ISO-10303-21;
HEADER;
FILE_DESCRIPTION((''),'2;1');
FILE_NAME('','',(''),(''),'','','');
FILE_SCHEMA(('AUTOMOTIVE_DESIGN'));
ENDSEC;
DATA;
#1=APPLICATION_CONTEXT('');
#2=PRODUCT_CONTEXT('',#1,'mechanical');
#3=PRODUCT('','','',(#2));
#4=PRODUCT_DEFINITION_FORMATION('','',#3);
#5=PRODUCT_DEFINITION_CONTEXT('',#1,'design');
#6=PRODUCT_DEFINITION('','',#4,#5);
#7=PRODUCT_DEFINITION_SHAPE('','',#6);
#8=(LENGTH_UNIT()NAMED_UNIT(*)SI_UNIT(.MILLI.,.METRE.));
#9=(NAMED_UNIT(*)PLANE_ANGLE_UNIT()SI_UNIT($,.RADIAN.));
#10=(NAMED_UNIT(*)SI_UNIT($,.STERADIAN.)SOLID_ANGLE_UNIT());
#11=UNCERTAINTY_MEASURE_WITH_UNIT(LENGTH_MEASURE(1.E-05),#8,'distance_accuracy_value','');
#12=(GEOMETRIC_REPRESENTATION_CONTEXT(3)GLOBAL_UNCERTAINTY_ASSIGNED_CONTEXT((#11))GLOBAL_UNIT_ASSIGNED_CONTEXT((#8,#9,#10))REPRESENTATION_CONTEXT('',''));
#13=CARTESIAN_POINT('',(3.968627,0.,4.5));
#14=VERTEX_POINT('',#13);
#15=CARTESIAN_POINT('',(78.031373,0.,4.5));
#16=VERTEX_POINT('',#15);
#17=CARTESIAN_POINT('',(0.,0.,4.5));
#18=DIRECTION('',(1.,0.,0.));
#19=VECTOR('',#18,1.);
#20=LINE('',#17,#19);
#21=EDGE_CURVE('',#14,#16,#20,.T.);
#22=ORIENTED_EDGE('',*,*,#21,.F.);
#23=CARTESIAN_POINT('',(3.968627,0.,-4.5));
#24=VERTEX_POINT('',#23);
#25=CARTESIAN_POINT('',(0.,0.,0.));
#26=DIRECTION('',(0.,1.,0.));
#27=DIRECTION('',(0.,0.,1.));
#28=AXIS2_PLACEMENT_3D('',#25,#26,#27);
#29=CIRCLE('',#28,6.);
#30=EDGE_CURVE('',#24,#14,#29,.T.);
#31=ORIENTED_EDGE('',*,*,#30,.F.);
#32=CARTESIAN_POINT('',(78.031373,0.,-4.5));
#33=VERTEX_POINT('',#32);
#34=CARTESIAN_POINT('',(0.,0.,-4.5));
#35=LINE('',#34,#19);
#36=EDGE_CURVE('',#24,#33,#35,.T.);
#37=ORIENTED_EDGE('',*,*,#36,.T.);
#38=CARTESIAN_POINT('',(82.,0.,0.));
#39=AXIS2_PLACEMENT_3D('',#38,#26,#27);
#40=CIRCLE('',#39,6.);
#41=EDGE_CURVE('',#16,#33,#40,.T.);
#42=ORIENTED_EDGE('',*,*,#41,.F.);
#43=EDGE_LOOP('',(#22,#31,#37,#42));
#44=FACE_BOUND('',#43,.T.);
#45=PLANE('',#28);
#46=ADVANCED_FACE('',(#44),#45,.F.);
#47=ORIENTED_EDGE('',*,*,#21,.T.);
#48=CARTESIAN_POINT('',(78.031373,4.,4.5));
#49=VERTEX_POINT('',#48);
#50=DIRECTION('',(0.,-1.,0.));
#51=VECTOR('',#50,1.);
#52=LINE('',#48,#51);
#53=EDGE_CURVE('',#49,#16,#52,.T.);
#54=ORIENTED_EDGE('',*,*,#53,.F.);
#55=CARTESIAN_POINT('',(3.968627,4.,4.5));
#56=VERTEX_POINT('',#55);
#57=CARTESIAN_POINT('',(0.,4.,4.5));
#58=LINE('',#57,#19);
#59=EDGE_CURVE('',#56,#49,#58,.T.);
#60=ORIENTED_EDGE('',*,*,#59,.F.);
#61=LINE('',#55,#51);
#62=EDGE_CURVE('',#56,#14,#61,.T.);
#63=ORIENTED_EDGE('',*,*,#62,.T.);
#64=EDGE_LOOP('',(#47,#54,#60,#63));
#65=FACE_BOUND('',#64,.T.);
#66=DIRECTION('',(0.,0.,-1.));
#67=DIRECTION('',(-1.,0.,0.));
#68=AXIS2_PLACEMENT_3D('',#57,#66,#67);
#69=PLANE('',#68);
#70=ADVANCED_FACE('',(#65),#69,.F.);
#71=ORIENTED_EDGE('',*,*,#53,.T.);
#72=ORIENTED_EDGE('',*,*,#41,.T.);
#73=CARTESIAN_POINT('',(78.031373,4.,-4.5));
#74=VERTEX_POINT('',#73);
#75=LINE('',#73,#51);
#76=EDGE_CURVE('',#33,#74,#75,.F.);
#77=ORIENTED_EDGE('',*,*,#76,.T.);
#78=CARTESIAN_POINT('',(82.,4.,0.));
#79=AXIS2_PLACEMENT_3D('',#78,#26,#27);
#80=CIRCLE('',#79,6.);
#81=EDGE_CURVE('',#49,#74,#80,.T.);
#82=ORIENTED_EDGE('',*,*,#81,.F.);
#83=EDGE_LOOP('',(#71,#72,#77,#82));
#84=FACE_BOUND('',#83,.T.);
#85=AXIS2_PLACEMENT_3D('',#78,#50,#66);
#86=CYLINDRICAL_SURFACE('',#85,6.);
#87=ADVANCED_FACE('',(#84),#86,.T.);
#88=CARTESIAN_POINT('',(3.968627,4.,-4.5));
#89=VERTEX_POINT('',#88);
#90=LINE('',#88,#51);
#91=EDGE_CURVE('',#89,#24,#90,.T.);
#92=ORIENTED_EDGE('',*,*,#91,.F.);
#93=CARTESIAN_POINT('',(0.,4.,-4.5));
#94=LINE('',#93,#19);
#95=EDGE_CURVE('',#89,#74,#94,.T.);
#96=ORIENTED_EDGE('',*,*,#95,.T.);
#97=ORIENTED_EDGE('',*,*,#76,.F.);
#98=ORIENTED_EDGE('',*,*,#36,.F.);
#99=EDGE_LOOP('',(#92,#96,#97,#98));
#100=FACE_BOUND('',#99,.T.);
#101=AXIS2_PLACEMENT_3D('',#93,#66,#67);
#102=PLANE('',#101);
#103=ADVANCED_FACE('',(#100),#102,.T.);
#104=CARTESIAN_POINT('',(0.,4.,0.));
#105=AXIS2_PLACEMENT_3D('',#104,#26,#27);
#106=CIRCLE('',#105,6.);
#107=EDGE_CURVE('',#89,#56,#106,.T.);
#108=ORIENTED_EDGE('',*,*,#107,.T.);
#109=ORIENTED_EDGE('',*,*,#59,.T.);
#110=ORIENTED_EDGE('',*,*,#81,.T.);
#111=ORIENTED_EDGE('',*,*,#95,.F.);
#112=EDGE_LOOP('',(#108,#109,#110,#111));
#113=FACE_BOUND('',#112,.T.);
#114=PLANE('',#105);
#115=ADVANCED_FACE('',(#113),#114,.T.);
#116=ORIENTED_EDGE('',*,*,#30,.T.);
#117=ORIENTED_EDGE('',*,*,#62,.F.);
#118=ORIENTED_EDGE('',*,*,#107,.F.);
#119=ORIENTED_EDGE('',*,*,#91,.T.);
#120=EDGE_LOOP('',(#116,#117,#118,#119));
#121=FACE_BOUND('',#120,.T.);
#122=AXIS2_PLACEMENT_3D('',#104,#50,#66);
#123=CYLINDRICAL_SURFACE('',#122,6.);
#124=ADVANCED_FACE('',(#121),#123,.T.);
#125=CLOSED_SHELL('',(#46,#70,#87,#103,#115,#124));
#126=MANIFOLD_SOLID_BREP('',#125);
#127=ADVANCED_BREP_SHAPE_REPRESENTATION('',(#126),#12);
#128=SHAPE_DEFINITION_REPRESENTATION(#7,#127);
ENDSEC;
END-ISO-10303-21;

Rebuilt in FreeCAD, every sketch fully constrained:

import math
import FreeCAD as App
import Part
import Sketcher
from FreeCAD import Vector

doc = App.newDocument("Part")
body = doc.addObject("PartDesign::Body", "Body")

# Sketch on XZ plane
sketch1 = body.newObject("Sketcher::SketchObject", "Sketch")
sketch1.AttachmentSupport = (doc.getObject("XZ_Plane"), [""])
sketch1.MapMode = "FlatFace"
sketch1.addGeometry([
    Part.LineSegment(Vector(78, -4, 0), Vector(4, -4, 0)),
    Part.ArcOfCircle(Part.Circle(Vector(0, 0, 0), Vector(0, 0, 1), 6), math.radians(49), math.radians(311)),
    Part.LineSegment(Vector(4, 4, 0), Vector(78, 4, 0)),
    Part.ArcOfCircle(Part.Circle(Vector(82, 0, 0), Vector(0, 0, 1), 6), math.radians(-131), math.radians(131)),
], False)
sketch1.addConstraint([
    Sketcher.Constraint("Coincident", 0, 2, 1, 2),
    Sketcher.Constraint("Coincident", 1, 1, 2, 1),
    Sketcher.Constraint("Coincident", 2, 2, 3, 2),
    Sketcher.Constraint("Coincident", 3, 1, 0, 1),
    Sketcher.Constraint("Horizontal", 0),
    Sketcher.Constraint("Horizontal", 2),
    Sketcher.Constraint("Coincident", 1, 3, -1, 1),
    Sketcher.Constraint("Equal", 1, 3),
    Sketcher.Constraint("Symmetric", 2, 2, 3, 1, -1),
    Sketcher.Constraint("Radius", 1, 6.0),
    Sketcher.Constraint("DistanceX", -1, 1, 3, 3, 82.0),
    Sketcher.Constraint("DistanceY", 0, 2, 1, 1, 9.0),
])
pad1 = body.newObject("PartDesign::Pad", "Pad")
pad1.Profile = sketch1
pad1.Length = 4
pad1.Reversed = True

doc.recompute()
